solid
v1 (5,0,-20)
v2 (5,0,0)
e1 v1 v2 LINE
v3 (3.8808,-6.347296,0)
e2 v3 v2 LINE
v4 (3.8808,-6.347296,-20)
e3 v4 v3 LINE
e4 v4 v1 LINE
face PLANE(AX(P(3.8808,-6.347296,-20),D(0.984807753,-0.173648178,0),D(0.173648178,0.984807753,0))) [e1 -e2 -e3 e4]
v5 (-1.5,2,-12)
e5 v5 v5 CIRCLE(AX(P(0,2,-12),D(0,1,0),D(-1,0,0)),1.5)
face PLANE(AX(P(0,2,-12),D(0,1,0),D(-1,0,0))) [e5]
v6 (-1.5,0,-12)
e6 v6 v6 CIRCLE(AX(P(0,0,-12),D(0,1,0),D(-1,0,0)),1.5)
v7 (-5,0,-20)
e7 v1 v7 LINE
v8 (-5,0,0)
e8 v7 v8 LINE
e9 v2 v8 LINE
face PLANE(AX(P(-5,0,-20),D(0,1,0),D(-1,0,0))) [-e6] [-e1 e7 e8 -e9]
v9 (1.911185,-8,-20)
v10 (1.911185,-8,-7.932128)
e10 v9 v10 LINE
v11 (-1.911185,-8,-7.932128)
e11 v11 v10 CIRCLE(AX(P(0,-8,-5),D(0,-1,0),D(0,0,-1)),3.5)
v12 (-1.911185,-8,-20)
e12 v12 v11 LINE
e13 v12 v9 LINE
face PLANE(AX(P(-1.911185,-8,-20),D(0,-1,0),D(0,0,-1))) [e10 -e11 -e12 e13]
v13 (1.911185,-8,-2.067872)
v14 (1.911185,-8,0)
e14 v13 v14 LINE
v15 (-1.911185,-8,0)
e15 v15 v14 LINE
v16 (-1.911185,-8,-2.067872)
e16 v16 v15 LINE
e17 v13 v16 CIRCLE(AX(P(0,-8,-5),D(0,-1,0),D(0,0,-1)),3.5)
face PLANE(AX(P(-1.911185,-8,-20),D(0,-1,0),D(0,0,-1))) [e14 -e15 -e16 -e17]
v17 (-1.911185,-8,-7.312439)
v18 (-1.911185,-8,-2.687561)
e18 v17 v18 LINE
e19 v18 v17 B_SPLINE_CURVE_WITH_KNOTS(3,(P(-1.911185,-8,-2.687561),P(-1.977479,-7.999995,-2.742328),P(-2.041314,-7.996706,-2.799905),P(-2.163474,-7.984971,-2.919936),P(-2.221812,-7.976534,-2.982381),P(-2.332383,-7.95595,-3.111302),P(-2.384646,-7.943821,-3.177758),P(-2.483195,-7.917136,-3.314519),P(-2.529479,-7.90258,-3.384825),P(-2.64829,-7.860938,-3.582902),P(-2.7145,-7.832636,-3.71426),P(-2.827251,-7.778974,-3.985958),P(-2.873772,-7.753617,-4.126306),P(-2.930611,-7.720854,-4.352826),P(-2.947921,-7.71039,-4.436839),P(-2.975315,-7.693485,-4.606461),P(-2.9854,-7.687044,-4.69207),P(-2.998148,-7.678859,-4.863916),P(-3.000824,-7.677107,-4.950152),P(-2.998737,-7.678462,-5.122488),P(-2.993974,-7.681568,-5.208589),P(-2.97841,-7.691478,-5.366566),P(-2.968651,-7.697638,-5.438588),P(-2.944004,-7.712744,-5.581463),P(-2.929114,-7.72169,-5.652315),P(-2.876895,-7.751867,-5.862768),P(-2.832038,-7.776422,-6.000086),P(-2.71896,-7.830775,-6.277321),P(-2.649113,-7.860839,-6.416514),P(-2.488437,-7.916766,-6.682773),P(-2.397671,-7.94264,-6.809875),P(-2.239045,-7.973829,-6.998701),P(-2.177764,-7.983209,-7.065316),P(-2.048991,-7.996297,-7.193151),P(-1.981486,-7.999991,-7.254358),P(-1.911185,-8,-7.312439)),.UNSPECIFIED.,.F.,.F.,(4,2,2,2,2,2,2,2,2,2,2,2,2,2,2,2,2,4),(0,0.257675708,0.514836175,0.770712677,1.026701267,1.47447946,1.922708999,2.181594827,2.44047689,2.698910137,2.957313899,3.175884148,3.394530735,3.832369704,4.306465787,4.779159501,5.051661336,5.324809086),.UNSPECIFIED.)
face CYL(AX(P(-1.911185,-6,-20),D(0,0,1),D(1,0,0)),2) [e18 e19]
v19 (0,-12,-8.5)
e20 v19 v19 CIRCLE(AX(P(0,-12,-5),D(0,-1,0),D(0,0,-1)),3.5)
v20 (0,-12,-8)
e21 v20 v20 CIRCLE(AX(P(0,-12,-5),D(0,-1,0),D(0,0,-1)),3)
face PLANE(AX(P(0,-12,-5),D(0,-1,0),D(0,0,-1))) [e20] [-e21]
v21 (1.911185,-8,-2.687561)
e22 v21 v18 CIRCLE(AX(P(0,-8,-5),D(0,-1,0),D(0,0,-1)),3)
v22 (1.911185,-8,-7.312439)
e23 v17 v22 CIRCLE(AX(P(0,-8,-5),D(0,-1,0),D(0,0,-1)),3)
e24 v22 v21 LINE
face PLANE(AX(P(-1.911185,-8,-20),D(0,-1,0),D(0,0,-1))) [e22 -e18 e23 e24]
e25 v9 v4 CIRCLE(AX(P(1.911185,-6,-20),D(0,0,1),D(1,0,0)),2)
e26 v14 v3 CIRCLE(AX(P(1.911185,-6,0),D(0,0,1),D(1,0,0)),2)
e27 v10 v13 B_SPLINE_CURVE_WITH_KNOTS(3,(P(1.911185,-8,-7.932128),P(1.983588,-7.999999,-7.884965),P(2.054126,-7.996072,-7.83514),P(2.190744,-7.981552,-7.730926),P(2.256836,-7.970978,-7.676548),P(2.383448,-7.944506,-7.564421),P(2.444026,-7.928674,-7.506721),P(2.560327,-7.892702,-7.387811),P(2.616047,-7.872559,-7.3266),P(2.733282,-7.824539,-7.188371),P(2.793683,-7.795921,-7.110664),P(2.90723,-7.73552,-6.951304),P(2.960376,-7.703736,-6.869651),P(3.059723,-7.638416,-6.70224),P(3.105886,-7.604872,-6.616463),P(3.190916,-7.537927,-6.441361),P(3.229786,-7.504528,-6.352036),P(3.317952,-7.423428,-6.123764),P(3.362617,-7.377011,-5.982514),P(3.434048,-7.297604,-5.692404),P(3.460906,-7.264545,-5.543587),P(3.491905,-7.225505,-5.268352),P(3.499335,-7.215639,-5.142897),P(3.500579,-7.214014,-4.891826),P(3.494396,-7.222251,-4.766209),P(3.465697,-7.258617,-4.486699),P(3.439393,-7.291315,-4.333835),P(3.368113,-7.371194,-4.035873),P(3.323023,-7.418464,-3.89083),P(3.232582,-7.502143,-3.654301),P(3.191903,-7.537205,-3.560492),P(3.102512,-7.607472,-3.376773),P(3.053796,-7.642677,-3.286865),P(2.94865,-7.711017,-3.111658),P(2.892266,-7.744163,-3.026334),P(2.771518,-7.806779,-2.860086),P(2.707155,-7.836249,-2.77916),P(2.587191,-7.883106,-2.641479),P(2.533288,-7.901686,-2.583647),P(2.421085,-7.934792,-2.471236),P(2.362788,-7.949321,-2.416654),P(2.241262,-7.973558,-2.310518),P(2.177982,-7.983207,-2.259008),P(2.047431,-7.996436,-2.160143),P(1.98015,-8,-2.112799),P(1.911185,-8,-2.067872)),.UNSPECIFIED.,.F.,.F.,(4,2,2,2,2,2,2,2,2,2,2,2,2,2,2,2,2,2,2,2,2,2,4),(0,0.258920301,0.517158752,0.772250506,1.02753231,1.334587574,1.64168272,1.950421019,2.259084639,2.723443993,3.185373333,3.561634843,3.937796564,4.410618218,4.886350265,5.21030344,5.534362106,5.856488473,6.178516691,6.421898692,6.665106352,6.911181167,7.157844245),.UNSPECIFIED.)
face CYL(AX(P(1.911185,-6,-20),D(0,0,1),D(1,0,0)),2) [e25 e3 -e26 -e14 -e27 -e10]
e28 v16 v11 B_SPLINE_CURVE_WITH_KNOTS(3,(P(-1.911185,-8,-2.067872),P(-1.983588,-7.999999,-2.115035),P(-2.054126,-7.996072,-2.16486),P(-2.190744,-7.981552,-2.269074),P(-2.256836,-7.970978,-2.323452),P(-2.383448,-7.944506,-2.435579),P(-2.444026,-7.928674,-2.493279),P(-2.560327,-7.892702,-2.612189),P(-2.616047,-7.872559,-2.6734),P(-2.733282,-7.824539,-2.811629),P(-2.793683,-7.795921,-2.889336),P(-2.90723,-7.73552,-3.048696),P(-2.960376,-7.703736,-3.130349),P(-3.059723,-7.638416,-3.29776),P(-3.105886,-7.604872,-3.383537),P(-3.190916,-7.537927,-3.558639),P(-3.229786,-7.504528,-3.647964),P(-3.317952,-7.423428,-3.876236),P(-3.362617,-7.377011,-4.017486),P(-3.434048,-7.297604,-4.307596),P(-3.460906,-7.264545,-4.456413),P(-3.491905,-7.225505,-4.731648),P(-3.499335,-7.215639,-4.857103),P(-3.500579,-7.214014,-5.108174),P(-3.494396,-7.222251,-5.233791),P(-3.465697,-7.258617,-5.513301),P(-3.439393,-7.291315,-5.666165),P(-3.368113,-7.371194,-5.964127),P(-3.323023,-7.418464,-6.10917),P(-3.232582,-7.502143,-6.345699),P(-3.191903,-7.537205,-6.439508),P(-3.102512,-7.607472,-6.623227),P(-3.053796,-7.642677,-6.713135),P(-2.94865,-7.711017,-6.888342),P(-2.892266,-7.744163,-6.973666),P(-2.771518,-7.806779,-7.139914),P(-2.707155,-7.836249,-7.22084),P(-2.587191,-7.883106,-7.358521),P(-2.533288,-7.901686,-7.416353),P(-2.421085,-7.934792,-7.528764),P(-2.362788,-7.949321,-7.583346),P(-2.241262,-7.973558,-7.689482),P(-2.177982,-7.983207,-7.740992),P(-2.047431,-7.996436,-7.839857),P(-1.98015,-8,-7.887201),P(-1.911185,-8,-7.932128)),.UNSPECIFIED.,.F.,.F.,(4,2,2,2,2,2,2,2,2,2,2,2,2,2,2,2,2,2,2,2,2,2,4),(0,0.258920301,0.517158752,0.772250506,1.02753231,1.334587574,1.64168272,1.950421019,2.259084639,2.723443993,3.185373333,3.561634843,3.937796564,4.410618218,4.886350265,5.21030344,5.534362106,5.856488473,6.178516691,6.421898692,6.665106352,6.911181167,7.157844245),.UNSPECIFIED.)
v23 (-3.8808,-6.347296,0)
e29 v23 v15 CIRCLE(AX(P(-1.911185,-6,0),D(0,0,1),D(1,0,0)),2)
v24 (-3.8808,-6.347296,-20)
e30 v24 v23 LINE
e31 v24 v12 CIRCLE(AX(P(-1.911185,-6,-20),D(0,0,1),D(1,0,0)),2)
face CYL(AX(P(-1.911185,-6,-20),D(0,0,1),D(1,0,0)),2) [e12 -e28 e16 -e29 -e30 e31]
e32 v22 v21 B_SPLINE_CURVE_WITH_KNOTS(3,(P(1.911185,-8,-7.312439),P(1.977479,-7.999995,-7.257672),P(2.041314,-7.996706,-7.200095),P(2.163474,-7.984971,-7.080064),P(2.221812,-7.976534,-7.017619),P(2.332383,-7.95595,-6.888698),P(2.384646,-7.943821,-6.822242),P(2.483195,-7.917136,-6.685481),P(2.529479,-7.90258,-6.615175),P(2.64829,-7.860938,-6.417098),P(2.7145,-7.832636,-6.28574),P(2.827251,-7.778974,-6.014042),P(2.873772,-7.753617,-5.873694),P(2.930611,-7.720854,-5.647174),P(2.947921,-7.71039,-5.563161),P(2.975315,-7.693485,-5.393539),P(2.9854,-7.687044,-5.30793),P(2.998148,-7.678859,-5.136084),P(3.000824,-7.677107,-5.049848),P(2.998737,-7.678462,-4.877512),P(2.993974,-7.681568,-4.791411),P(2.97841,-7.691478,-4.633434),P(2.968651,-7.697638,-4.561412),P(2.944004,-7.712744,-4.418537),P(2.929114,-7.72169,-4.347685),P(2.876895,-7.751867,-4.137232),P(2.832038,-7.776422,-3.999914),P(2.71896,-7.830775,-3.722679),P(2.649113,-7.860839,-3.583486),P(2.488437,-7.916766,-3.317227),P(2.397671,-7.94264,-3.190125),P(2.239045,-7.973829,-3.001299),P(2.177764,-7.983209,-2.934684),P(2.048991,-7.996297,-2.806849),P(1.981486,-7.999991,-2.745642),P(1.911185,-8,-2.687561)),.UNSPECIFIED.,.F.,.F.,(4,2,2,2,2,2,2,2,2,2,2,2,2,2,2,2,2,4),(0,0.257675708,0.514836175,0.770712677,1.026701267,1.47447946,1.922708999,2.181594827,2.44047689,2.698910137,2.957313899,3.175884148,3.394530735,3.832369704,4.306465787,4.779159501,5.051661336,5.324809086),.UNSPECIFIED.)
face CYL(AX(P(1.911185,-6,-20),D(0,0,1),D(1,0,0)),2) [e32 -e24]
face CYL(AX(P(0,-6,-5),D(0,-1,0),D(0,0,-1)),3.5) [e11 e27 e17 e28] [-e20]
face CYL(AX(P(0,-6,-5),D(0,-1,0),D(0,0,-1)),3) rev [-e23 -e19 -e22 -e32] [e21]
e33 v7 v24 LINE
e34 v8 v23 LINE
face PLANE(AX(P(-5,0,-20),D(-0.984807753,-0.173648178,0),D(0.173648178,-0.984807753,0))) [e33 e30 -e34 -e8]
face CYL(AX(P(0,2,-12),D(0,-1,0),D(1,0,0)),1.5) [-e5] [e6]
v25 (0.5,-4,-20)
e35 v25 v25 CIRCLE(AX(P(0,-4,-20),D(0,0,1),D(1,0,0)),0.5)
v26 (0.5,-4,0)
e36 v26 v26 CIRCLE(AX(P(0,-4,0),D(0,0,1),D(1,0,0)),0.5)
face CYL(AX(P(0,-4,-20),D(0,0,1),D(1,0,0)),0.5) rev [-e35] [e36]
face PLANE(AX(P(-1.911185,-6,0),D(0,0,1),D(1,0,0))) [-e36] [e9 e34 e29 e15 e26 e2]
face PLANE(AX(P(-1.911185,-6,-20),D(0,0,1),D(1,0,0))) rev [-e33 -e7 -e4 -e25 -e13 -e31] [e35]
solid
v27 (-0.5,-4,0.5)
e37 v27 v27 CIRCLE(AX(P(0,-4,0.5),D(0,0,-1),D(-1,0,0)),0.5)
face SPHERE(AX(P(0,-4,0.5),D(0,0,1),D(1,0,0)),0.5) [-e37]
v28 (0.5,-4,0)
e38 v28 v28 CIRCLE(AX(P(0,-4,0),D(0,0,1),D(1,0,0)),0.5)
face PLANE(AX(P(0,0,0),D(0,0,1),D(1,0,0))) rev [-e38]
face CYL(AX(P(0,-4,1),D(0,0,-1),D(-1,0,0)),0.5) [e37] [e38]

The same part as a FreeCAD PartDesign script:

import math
import FreeCAD as App
import Part
import Sketcher

V = App.Vector
Q = App.Units.Quantity


def edges_at(feature, points):
    """Names of the edges that pass closest to the given points."""
    edges = feature.Shape.Edges
    near = lambda p: min(range(len(edges)), key=lambda i: edges[i].distToShape(Part.Vertex(*p))[0])
    return sorted({f"Edge{near(p) + 1}" for p in points})

doc = App.newDocument("Part")
body = doc.addObject("PartDesign::Body", "Body")

# Sketch on XY plane
sketch1 = body.newObject("Sketcher::SketchObject", "Sketch")
sketch1.AttachmentSupport = (doc.getObject("XY_Plane"), [""])
sketch1.MapMode = "FlatFace"
sketch1.addGeometry([
    Part.LineSegment(V(5, 0, 0), V(-5, 0, 0)),  # 0
    Part.LineSegment(V(-5, 0, 0), V(-3.9, -6.3, 0)),  # 1
    Part.ArcOfCircle(Part.Circle(V(-1.9, -6, 0), V(0, 0, 1), 2), math.radians(-170), math.radians(-90)),  # 2
    Part.LineSegment(V(-1.9, -8, 0), V(1.9, -8, 0)),  # 3
    Part.ArcOfCircle(Part.Circle(V(1.9, -6, 0), V(0, 0, 1), 2), math.radians(-90), math.radians(-10)),  # 4
    Part.LineSegment(V(3.9, -6.3, 0), V(5, 0, 0)),  # 5
    Part.Circle(V(0, -4, 0), V(0, 0, 1), 0.5),  # 6
], False)
sketch1.addConstraint([
    Sketcher.Constraint("Coincident", 0, 2, 1, 1),
    Sketcher.Constraint("Tangent", 1, 2, 2, 1),
    Sketcher.Constraint("Tangent", 2, 2, 3, 1),
    Sketcher.Constraint("Tangent", 3, 2, 4, 1),
    Sketcher.Constraint("Tangent", 4, 2, 5, 1),
    Sketcher.Constraint("Coincident", 5, 2, 0, 1),
    Sketcher.Constraint("Horizontal", 0),
    Sketcher.Constraint("Horizontal", 3),
    Sketcher.Constraint("Equal", 2, 4),
    Sketcher.Constraint("Symmetric", 0, 2, 5, 2, -1, 1),
    Sketcher.Constraint("PointOnObject", 6, 3, -2),
    Sketcher.Constraint("Horizontal", 1, 2, 4, 2),
    Sketcher.Constraint("Diameter", 6, Q("1 mm")),
    Sketcher.Constraint("Radius", 2, Q("2 mm")),
    Sketcher.Constraint("DistanceX", 0, 2, 0, 1, Q("10 mm")),
    Sketcher.Constraint("Angle", 1, Q("-80 deg")),
    Sketcher.Constraint("DistanceY", 2, 3, -1, 1, Q("6 mm")),
    Sketcher.Constraint("DistanceY", 6, 3, -1, 1, Q("4 mm")),
])
pad1 = body.newObject("PartDesign::Pad", "Pad")
pad1.Profile = sketch1
pad1.Length = 20
pad1.Reversed = True

# Sketch on XZ plane
sketch2 = body.newObject("Sketcher::SketchObject", "Sketch001")
sketch2.AttachmentSupport = (doc.getObject("XZ_Plane"), [""])
sketch2.MapMode = "FlatFace"
sketch2.AttachmentOffset = App.Placement(V(0, 0, 8), App.Rotation())
sketch2.addGeometry([
    Part.Circle(V(0, -5, 0), V(0, 0, 1), 3.5),
    Part.Circle(V(0, -5, 0), V(0, 0, 1), 3),
], False)
sketch2.addConstraint([
    Sketcher.Constraint("Coincident", 1, 3, 0, 3),
    Sketcher.Constraint("PointOnObject", 0, 3, -2),
    Sketcher.Constraint("Diameter", 0, Q("7 mm")),
    Sketcher.Constraint("Diameter", 1, Q("6 mm")),
    Sketcher.Constraint("DistanceY", 0, 3, -1, 1, Q("5 mm")),
])
pad2 = body.newObject("PartDesign::Pad", "Pad001")
pad2.Profile = sketch2
pad2.Type = "TwoLengths"
pad2.Length = 4
pad2.Length2 = 2

# Sketch on XZ plane
sketch3 = body.newObject("Sketcher::SketchObject", "Sketch002")
sketch3.AttachmentSupport = (doc.getObject("XZ_Plane"), [""])
sketch3.MapMode = "FlatFace"
sketch3.addGeometry(Part.Circle(V(0, -12, 0), V(0, 0, 1), 1.5), False)
sketch3.addConstraint([
    Sketcher.Constraint("PointOnObject", 0, 3, -2),
    Sketcher.Constraint("Diameter", 0, Q("3 mm")),
    Sketcher.Constraint("DistanceY", 0, 3, -1, 1, Q("12 mm")),
])
pad3 = body.newObject("PartDesign::Pad", "Pad002")
pad3.Profile = sketch3
pad3.Length = 2
pad3.Reversed = True
body2 = doc.addObject("PartDesign::Body", "Body001")

# Sketch on XY plane
sketch4 = body2.newObject("Sketcher::SketchObject", "Sketch003")
sketch4.AttachmentSupport = (doc.getObject("XY_Plane001"), [""])
sketch4.MapMode = "FlatFace"
sketch4.addGeometry(Part.Circle(V(0, -4, 0), V(0, 0, 1), 0.5), False)
sketch4.addConstraint([
    Sketcher.Constraint("PointOnObject", 0, 3, -2),
    Sketcher.Constraint("Diameter", 0, Q("1 mm")),
    Sketcher.Constraint("DistanceY", 0, 3, -1, 1, Q("4 mm")),
])
pad4 = body2.newObject("PartDesign::Pad", "Pad003")
pad4.Profile = sketch4
pad4.Length = 1
doc.recompute()

fillet = body2.newObject("PartDesign::Fillet", "Fillet")
fillet.Base = (pad4, edges_at(pad4, [(-0.5, -4, 1)]))
fillet.Radius = 0.5

doc.recompute()
